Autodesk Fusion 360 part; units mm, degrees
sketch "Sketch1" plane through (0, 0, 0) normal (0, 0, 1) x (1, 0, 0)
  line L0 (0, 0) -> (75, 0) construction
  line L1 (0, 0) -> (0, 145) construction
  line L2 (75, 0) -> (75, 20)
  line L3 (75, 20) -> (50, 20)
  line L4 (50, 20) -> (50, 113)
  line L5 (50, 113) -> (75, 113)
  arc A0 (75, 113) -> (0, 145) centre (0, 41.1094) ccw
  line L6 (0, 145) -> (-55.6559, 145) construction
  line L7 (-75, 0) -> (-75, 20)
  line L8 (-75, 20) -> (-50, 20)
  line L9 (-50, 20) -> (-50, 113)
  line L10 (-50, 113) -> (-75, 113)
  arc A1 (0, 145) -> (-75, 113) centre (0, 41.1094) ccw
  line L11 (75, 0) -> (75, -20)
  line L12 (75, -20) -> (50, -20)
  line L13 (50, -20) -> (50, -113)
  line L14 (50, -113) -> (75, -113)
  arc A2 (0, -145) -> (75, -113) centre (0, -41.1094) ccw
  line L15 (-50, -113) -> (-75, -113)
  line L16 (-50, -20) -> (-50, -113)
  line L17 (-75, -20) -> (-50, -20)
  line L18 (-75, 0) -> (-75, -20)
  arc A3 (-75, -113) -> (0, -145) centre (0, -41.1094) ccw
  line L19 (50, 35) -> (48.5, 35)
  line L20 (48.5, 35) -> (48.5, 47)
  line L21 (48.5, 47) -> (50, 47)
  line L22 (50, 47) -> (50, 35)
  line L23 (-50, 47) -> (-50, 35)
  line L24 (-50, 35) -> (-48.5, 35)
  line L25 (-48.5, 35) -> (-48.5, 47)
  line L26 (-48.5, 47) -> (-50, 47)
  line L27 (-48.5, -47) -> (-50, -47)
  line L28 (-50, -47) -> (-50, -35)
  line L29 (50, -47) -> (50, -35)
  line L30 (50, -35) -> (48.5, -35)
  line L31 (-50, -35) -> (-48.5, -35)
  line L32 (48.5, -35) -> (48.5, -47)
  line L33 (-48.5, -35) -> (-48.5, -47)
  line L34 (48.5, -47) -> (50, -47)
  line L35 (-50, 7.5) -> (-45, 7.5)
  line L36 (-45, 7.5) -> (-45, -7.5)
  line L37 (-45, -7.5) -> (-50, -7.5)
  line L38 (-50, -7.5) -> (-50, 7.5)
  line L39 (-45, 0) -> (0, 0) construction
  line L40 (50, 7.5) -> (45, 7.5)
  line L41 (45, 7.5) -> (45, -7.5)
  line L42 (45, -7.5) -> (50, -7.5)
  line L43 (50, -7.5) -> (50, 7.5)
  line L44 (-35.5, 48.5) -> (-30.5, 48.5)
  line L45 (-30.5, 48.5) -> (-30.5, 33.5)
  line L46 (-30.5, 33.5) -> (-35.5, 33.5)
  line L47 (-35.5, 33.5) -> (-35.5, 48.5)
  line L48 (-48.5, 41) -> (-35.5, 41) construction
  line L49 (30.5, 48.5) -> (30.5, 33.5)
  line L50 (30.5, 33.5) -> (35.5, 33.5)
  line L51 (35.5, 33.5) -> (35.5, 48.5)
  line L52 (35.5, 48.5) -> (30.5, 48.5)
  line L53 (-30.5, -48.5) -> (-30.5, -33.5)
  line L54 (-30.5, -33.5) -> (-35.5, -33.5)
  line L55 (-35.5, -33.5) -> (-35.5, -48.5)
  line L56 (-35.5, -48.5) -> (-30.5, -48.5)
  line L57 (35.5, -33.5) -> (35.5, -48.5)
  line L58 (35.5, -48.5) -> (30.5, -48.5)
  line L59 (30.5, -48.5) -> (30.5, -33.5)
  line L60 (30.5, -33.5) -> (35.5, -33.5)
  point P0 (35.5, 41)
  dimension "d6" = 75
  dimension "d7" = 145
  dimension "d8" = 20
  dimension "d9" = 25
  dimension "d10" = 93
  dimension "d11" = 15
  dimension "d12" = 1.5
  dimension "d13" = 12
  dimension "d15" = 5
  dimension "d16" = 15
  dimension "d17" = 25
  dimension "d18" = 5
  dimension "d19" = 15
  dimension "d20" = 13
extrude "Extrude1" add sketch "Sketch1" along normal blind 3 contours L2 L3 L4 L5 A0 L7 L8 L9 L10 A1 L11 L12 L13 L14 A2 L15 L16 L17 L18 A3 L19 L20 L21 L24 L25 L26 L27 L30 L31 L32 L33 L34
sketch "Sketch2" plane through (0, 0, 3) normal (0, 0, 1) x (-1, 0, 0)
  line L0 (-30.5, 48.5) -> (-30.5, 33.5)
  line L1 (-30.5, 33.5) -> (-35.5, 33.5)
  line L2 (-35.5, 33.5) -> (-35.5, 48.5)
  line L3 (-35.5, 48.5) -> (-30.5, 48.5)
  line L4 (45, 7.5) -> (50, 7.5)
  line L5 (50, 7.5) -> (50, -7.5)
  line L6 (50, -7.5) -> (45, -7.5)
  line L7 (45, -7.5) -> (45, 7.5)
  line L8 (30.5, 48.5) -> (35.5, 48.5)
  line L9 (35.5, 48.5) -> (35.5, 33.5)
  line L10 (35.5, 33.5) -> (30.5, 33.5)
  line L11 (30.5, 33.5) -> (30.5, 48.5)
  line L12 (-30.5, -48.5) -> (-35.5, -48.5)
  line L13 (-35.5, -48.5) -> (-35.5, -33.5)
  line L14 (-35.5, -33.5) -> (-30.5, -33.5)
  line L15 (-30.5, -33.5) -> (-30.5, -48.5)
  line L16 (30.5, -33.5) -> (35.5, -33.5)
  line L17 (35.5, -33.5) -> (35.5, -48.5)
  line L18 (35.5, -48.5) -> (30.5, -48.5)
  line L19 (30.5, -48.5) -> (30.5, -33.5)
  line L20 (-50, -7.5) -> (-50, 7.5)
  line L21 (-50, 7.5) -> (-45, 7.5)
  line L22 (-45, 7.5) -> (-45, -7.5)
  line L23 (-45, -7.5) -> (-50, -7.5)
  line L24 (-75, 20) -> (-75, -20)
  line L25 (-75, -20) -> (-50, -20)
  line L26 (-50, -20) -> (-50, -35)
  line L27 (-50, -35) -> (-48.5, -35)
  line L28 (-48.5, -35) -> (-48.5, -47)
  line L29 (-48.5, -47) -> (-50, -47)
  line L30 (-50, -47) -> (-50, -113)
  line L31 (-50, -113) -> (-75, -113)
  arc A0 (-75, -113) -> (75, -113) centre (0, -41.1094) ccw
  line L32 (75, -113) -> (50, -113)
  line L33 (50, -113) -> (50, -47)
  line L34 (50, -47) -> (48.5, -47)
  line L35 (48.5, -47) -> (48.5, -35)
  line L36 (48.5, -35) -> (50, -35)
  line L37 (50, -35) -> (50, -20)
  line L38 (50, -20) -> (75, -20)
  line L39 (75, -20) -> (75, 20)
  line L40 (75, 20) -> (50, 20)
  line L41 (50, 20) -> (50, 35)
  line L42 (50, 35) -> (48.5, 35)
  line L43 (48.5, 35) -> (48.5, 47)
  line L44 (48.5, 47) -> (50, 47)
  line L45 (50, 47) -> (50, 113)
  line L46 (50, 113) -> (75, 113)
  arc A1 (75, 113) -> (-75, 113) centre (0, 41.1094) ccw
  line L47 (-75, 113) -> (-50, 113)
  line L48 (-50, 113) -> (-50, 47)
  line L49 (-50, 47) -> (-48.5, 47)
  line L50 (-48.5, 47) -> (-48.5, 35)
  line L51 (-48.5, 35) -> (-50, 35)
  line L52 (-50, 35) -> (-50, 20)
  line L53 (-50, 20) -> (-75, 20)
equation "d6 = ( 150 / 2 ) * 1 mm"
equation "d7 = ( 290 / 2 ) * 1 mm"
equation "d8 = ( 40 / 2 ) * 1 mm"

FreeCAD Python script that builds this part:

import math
import FreeCAD as App
import Part
import Sketcher

V = App.Vector
Q = App.Units.Quantity

doc = App.newDocument("Part")
body = doc.addObject("PartDesign::Body", "Body")

# Sketch on XY plane
sketch1 = body.newObject("Sketcher::SketchObject", "Sketch")
sketch1.AttachmentSupport = (doc.getObject("XY_Plane"), [""])
sketch1.MapMode = "FlatFace"
sketch1.addGeometry([
    Part.LineSegment(V(75, -20, 0), V(75, 20, 0)),  # 0
    Part.LineSegment(V(75, 20, 0), V(50, 20, 0)),  # 1
    Part.LineSegment(V(50, 20, 0), V(50, 35, 0)),  # 2
    Part.LineSegment(V(50, 35, 0), V(48.5, 35, 0)),  # 3
    Part.LineSegment(V(48.5, 35, 0), V(48.5, 47, 0)),  # 4
    Part.LineSegment(V(48.5, 47, 0), V(50, 47, 0)),  # 5
    Part.LineSegment(V(50, 47, 0), V(50, 113, 0)),  # 6
    Part.LineSegment(V(50, 113, 0), V(75, 113, 0)),  # 7
    Part.ArcOfCircle(Part.Circle(V(0, 41.1, 0), V(0, 0, 1), 103.9), math.radians(44), math.radians(90)),  # 8
    Part.ArcOfCircle(Part.Circle(V(0, 41.1, 0), V(0, 0, 1), 103.9), math.radians(90), math.radians(136)),  # 9
    Part.LineSegment(V(-75, 113, 0), V(-50, 113, 0)),  # 10
    Part.LineSegment(V(-50, 113, 0), V(-50, 47, 0)),  # 11
    Part.LineSegment(V(-50, 47, 0), V(-48.5, 47, 0)),  # 12
    Part.LineSegment(V(-48.5, 47, 0), V(-48.5, 35, 0)),  # 13
    Part.LineSegment(V(-48.5, 35, 0), V(-50, 35, 0)),  # 14
    Part.LineSegment(V(-50, 35, 0), V(-50, 20, 0)),  # 15
    Part.LineSegment(V(-50, 20, 0), V(-75, 20, 0)),  # 16
    Part.LineSegment(V(-75, 20, 0), V(-75, -20, 0)),  # 17
    Part.LineSegment(V(-75, -20, 0), V(-50, -20, 0)),  # 18
    Part.LineSegment(V(-50, -20, 0), V(-50, -35, 0)),  # 19
    Part.LineSegment(V(-50, -35, 0), V(-48.5, -35, 0)),  # 20
    Part.LineSegment(V(-48.5, -35, 0), V(-48.5, -47, 0)),  # 21
    Part.LineSegment(V(-48.5, -47, 0), V(-50, -47, 0)),  # 22
    Part.LineSegment(V(-50, -47, 0), V(-50, -113, 0)),  # 23
    Part.LineSegment(V(-50, -113, 0), V(-75, -113, 0)),  # 24
    Part.ArcOfCircle(Part.Circle(V(0, -41.1, 0), V(0, 0, 1), 103.9), math.radians(-136), math.radians(-90)),  # 25
    Part.ArcOfCircle(Part.Circle(V(0, -41.1, 0), V(0, 0, 1), 103.9), math.radians(-90), math.radians(-44)),  # 26
    Part.LineSegment(V(75, -113, 0), V(50, -113, 0)),  # 27
    Part.LineSegment(V(50, -113, 0), V(50, -47, 0)),  # 28
    Part.LineSegment(V(50, -47, 0), V(48.5, -47, 0)),  # 29
    Part.LineSegment(V(48.5, -47, 0), V(48.5, -35, 0)),  # 30
    Part.LineSegment(V(48.5, -35, 0), V(50, -35, 0)),  # 31
    Part.LineSegment(V(50, -35, 0), V(50, -20, 0)),  # 32
    Part.LineSegment(V(50, -20, 0), V(75, -20, 0)),  # 33
    Part.LineSegment(V(-50, -7.5, 0), V(-50, 7.5, 0)),  # 34
    Part.LineSegment(V(-50, 7.5, 0), V(-45, 7.5, 0)),  # 35
    Part.LineSegment(V(-45, 7.5, 0), V(-45, -7.5, 0)),  # 36
    Part.LineSegment(V(-45, -7.5, 0), V(-50, -7.5, 0)),  # 37
    Part.LineSegment(V(-30.5, -33.5, 0), V(-30.5, -48.5, 0)),  # 38
    Part.LineSegment(V(-30.5, -48.5, 0), V(-35.5, -48.5, 0)),  # 39
    Part.LineSegment(V(-35.5, -48.5, 0), V(-35.5, -33.5, 0)),  # 40
    Part.LineSegment(V(-35.5, -33.5, 0), V(-30.5, -33.5, 0)),  # 41
    Part.LineSegment(V(30.5, -33.5, 0), V(35.5, -33.5, 0)),  # 42
    Part.LineSegment(V(35.5, -33.5, 0), V(35.5, -48.5, 0)),  # 43
    Part.LineSegment(V(35.5, -48.5, 0), V(30.5, -48.5, 0)),  # 44
    Part.LineSegment(V(30.5, -48.5, 0), V(30.5, -33.5, 0)),  # 45
    Part.LineSegment(V(45, 7.5, 0), V(50, 7.5, 0)),  # 46
    Part.LineSegment(V(50, 7.5, 0), V(50, -7.5, 0)),  # 47
    Part.LineSegment(V(50, -7.5, 0), V(45, -7.5, 0)),  # 48
    Part.LineSegment(V(45, -7.5, 0), V(45, 7.5, 0)),  # 49
    Part.LineSegment(V(-35.5, 33.5, 0), V(-35.5, 48.5, 0)),  # 50
    Part.LineSegment(V(-35.5, 48.5, 0), V(-30.5, 48.5, 0)),  # 51
    Part.LineSegment(V(-30.5, 48.5, 0), V(-30.5, 33.5, 0)),  # 52
    Part.LineSegment(V(-30.5, 33.5, 0), V(-35.5, 33.5, 0)),  # 53
    Part.LineSegment(V(30.5, 33.5, 0), V(30.5, 48.5, 0)),  # 54
    Part.LineSegment(V(30.5, 48.5, 0), V(35.5, 48.5, 0)),  # 55
    Part.LineSegment(V(35.5, 48.5, 0), V(35.5, 33.5, 0)),  # 56
    Part.LineSegment(V(35.5, 33.5, 0), V(30.5, 33.5, 0)),  # 57
], False)
sketch1.addConstraint([
    Sketcher.Constraint("Coincident", 0, 2, 1, 1),
    Sketcher.Constraint("Coincident", 1, 2, 2, 1),
    Sketcher.Constraint("Coincident", 2, 2, 3, 1),
    Sketcher.Constraint("Coincident", 3, 2, 4, 1),
    Sketcher.Constraint("Coincident", 4, 2, 5, 1),
    Sketcher.Constraint("Coincident", 5, 2, 6, 1),
    Sketcher.Constraint("Coincident", 6, 2, 7, 1),
    Sketcher.Constraint("Coincident", 7, 2, 8, 1),
    Sketcher.Constraint("Tangent", 8, 2, 9, 1),
    Sketcher.Constraint("Coincident", 9, 2, 10, 1),
    Sketcher.Constraint("Coincident", 10, 2, 11, 1),
    Sketcher.Constraint("Coincident", 11, 2, 12, 1),
    Sketcher.Constraint("Coincident", 12, 2, 13, 1),
    Sketcher.Constraint("Coincident", 13, 2, 14, 1),
    Sketcher.Constraint("Coincident", 14, 2, 15, 1),
    Sketcher.Constraint("Coincident", 15, 2, 16, 1),
    Sketcher.Constraint("Coincident", 16, 2, 17, 1),
    Sketcher.Constraint("Coincident", 17, 2, 18, 1),
    Sketcher.Constraint("Coincident", 18, 2, 19, 1),
    Sketcher.Constraint("Coincident", 19, 2, 20, 1),
    Sketcher.Constraint("Coincident", 20, 2, 21, 1),
    Sketcher.Constraint("Coincident", 21, 2, 22, 1),
    Sketcher.Constraint("Coincident", 22, 2, 23, 1),
    Sketcher.Constraint("Coincident", 23, 2, 24, 1),
    Sketcher.Constraint("Coincident", 24, 2, 25, 1),
    Sketcher.Constraint("Tangent", 25, 2, 26, 1),
    Sketcher.Constraint("Coincident", 26, 2, 27, 1),
    Sketcher.Constraint("Coincident", 27, 2, 28, 1),
    Sketcher.Constraint("Coincident", 28, 2, 29, 1),
    Sketcher.Constraint("Coincident", 29, 2, 30, 1),
    Sketcher.Constraint("Coincident", 30, 2, 31, 1),
    Sketcher.Constraint("Coincident", 31, 2, 32, 1),
    Sketcher.Constraint("Coincident", 32, 2, 33, 1),
    Sketcher.Constraint("Coincident", 33, 2, 0, 1),
    Sketcher.Constraint("Coincident", 34, 2, 35, 1),
    Sketcher.Constraint("Coincident", 35, 2, 36, 1),
    Sketcher.Constraint("Coincident", 36, 2, 37, 1),
    Sketcher.Constraint("Coincident", 37, 2, 34, 1),
    Sketcher.Constraint("Coincident", 38, 2, 39, 1),
    Sketcher.Constraint("Coincident", 39, 2, 40, 1),
    Sketcher.Constraint("Coincident", 40, 2, 41, 1),
    Sketcher.Constraint("Coincident", 41, 2, 38, 1),
    Sketcher.Constraint("Coincident", 42, 2, 43, 1),
    Sketcher.Constraint("Coincident", 43, 2, 44, 1),
    Sketcher.Constraint("Coincident", 44, 2, 45, 1),
    Sketcher.Constraint("Coincident", 45, 2, 42, 1),
    Sketcher.Constraint("Coincident", 46, 2, 47, 1),
    Sketcher.Constraint("Coincident", 47, 2, 48, 1),
    Sketcher.Constraint("Coincident", 48, 2, 49, 1),
    Sketcher.Constraint("Coincident", 49, 2, 46, 1),
    Sketcher.Constraint("Coincident", 50, 2, 51, 1),
    Sketcher.Constraint("Coincident", 51, 2, 52, 1),
    Sketcher.Constraint("Coincident", 52, 2, 53, 1),
    Sketcher.Constraint("Coincident", 53, 2, 50, 1),
    Sketcher.Constraint("Coincident", 54, 2, 55, 1),
    Sketcher.Constraint("Coincident", 55, 2, 56, 1),
    Sketcher.Constraint("Coincident", 56, 2, 57, 1),
    Sketcher.Constraint("Coincident", 57, 2, 54, 1),
    Sketcher.Constraint("Vertical", 0),
    Sketcher.Constraint("Horizontal", 1),
    Sketcher.Constraint("Vertical", 2),
    Sketcher.Constraint("Horizontal", 3),
    Sketcher.Constraint("Vertical", 4),
    Sketcher.Constraint("Horizontal", 5),
    Sketcher.Constraint("Vertical", 6),
    Sketcher.Constraint("Horizontal", 7),
    Sketcher.Constraint("Horizontal", 10),
    Sketcher.Constraint("Vertical", 11),
    Sketcher.Constraint("Horizontal", 12),
    Sketcher.Constraint("Vertical", 13),
    Sketcher.Constraint("Horizontal", 14),
    Sketcher.Constraint("Vertical", 15),
    Sketcher.Constraint("Horizontal", 16),
    Sketcher.Constraint("Vertical", 17),
    Sketcher.Constraint("Horizontal", 18),
    Sketcher.Constraint("Vertical", 19),
    Sketcher.Constraint("Horizontal", 20),
    Sketcher.Constraint("Vertical", 21),
    Sketcher.Constraint("Horizontal", 22),
    Sketcher.Constraint("Vertical", 23),
    Sketcher.Constraint("Horizontal", 24),
    Sketcher.Constraint("Horizontal", 27),
    Sketcher.Constraint("Vertical", 28),
    Sketcher.Constraint("Horizontal", 29),
    Sketcher.Constraint("Vertical", 30),
    Sketcher.Constraint("Horizontal", 31),
    Sketcher.Constraint("Vertical", 32),
    Sketcher.Constraint("Horizontal", 33),
    Sketcher.Constraint("Vertical", 34),
    Sketcher.Constraint("Horizontal", 35),
    Sketcher.Constraint("Vertical", 36),
    Sketcher.Constraint("Horizontal", 37),
    Sketcher.Constraint("Vertical", 38),
    Sketcher.Constraint("Horizontal", 39),
    Sketcher.Constraint("Vertical", 40),
    Sketcher.Constraint("Horizontal", 41),
    Sketcher.Constraint("Horizontal", 42),
    Sketcher.Constraint("Vertical", 43),
    Sketcher.Constraint("Horizontal", 44),
    Sketcher.Constraint("Vertical", 45),
    Sketcher.Constraint("Horizontal", 46),
    Sketcher.Constraint("Vertical", 47),
    Sketcher.Constraint("Horizontal", 48),
    Sketcher.Constraint("Vertical", 49),
    Sketcher.Constraint("Vertical", 50),
    Sketcher.Constraint("Horizontal", 51),
    Sketcher.Constraint("Vertical", 52),
    Sketcher.Constraint("Horizontal", 53),
    Sketcher.Constraint("Vertical", 54),
    Sketcher.Constraint("Horizontal", 55),
    Sketcher.Constraint("Vertical", 56),
    Sketcher.Constraint("Horizontal", 57),
    Sketcher.Constraint("Equal", 8, 9),
    Sketcher.Constraint("Equal", 9, 25),
    Sketcher.Constraint("Equal", 25, 26),
    Sketcher.Constraint("Symmetric", 8, 3, 25, 3, -1, 1),
    Sketcher.Constraint("Symmetric", 0, 2, 17, 2, -1, 1),
    Sketcher.Constraint("Symmetric", 2, 2, 19, 2, -1, 1),
    Sketcher.Constraint("Symmetric", 4, 2, 21, 2, -1, 1),
    Sketcher.Constraint("Symmetric", 6, 2, 23, 2, -1, 1),
    Sketcher.Constraint("Symmetric", 10, 2, 27, 2, -1, 1),
    Sketcher.Constraint("Symmetric", 12, 2, 29, 2, -1, 1),
    Sketcher.Constraint("Symmetric", 14, 2, 31, 2, -1, 1),
    Sketcher.Constraint("Symmetric", 37, 2, 46, 2, -1, 1),
    Sketcher.Constraint("Symmetric", 35, 2, 48, 2, -1, 1),
    Sketcher.Constraint("Symmetric", 43, 2, 50, 2, -1, 1),
    Sketcher.Constraint("Symmetric", 45, 2, 52, 2, -1, 1),
    Sketcher.Constraint("Symmetric", 38, 2, 54, 2, -1, 1),
    Sketcher.Constraint("Symmetric", 40, 2, 56, 2, -1, 1),
    Sketcher.Constraint("Symmetric", 7, 2, 9, 2, -2),
    Sketcher.Constraint("Symmetric", 5, 2, 11, 2, -2),
    Sketcher.Constraint("Symmetric", 3, 2, 13, 2, -2),
    Sketcher.Constraint("Symmetric", 1, 2, 15, 2, -2),
    Sketcher.Constraint("Symmetric", 40, 2, 42, 2, -2),
    Sketcher.Constraint("Symmetric", 38, 2, 44, 2, -2),
    Sketcher.Constraint("PointOnObject", 8, 2, -2),
    Sketcher.Constraint("PointOnObject", 25, 2, -2),
    Sketcher.Constraint("Horizontal", 18, 2, 32, 2),
    Sketcher.Constraint("Horizontal", 35, 2, 46, 2),
    Sketcher.Constraint("Vertical", 2, 2, 5, 2),
    Sketcher.Constraint("Vertical", 0, 2, 7, 2),
    Sketcher.Constraint("Vertical", 23, 2, 34, 2),
    Sketcher.Constraint("Equal", 37, 39),
    Sketcher.Constraint("Equal", 32, 34),
    Sketcher.Constraint("Equal", 36, 38),
    Sketcher.Constraint("DistanceX", 1, 2, 1, 1, Q("25 mm")),
    Sketcher.Constraint("DistanceX", 35, 1, 35, 2, Q("5 mm")),
    Sketcher.Constraint("DistanceY", 2, 1, 2, 2, Q("15 mm")),
    Sketcher.Constraint("DistanceY", 4, 1, 4, 2, Q("12 mm")),
    Sketcher.Constraint("DistanceX", 3, 2, 3, 1, Q("1.5 mm")),
    Sketcher.Constraint("DistanceX", -1, 1, 0, 2, Q("75 mm")),
    Sketcher.Constraint("DistanceY", -1, 1, 0, 2, Q("20 mm")),
    Sketcher.Constraint("DistanceY", -1, 1, 8, 2, Q("145 mm")),
    Sketcher.Constraint("DistanceY", 6, 1, 6, 2, Q("66 mm")),
    Sketcher.Constraint("DistanceX", 38, 2, -1, 1, Q("30.5 mm")),
    Sketcher.Constraint("DistanceY", 38, 2, -1, 1, Q("48.5 mm")),
])
pad1 = body.newObject("PartDesign::Pad", "Pad")
pad1.Profile = sketch1
pad1.Length = 3

doc.recompute()
